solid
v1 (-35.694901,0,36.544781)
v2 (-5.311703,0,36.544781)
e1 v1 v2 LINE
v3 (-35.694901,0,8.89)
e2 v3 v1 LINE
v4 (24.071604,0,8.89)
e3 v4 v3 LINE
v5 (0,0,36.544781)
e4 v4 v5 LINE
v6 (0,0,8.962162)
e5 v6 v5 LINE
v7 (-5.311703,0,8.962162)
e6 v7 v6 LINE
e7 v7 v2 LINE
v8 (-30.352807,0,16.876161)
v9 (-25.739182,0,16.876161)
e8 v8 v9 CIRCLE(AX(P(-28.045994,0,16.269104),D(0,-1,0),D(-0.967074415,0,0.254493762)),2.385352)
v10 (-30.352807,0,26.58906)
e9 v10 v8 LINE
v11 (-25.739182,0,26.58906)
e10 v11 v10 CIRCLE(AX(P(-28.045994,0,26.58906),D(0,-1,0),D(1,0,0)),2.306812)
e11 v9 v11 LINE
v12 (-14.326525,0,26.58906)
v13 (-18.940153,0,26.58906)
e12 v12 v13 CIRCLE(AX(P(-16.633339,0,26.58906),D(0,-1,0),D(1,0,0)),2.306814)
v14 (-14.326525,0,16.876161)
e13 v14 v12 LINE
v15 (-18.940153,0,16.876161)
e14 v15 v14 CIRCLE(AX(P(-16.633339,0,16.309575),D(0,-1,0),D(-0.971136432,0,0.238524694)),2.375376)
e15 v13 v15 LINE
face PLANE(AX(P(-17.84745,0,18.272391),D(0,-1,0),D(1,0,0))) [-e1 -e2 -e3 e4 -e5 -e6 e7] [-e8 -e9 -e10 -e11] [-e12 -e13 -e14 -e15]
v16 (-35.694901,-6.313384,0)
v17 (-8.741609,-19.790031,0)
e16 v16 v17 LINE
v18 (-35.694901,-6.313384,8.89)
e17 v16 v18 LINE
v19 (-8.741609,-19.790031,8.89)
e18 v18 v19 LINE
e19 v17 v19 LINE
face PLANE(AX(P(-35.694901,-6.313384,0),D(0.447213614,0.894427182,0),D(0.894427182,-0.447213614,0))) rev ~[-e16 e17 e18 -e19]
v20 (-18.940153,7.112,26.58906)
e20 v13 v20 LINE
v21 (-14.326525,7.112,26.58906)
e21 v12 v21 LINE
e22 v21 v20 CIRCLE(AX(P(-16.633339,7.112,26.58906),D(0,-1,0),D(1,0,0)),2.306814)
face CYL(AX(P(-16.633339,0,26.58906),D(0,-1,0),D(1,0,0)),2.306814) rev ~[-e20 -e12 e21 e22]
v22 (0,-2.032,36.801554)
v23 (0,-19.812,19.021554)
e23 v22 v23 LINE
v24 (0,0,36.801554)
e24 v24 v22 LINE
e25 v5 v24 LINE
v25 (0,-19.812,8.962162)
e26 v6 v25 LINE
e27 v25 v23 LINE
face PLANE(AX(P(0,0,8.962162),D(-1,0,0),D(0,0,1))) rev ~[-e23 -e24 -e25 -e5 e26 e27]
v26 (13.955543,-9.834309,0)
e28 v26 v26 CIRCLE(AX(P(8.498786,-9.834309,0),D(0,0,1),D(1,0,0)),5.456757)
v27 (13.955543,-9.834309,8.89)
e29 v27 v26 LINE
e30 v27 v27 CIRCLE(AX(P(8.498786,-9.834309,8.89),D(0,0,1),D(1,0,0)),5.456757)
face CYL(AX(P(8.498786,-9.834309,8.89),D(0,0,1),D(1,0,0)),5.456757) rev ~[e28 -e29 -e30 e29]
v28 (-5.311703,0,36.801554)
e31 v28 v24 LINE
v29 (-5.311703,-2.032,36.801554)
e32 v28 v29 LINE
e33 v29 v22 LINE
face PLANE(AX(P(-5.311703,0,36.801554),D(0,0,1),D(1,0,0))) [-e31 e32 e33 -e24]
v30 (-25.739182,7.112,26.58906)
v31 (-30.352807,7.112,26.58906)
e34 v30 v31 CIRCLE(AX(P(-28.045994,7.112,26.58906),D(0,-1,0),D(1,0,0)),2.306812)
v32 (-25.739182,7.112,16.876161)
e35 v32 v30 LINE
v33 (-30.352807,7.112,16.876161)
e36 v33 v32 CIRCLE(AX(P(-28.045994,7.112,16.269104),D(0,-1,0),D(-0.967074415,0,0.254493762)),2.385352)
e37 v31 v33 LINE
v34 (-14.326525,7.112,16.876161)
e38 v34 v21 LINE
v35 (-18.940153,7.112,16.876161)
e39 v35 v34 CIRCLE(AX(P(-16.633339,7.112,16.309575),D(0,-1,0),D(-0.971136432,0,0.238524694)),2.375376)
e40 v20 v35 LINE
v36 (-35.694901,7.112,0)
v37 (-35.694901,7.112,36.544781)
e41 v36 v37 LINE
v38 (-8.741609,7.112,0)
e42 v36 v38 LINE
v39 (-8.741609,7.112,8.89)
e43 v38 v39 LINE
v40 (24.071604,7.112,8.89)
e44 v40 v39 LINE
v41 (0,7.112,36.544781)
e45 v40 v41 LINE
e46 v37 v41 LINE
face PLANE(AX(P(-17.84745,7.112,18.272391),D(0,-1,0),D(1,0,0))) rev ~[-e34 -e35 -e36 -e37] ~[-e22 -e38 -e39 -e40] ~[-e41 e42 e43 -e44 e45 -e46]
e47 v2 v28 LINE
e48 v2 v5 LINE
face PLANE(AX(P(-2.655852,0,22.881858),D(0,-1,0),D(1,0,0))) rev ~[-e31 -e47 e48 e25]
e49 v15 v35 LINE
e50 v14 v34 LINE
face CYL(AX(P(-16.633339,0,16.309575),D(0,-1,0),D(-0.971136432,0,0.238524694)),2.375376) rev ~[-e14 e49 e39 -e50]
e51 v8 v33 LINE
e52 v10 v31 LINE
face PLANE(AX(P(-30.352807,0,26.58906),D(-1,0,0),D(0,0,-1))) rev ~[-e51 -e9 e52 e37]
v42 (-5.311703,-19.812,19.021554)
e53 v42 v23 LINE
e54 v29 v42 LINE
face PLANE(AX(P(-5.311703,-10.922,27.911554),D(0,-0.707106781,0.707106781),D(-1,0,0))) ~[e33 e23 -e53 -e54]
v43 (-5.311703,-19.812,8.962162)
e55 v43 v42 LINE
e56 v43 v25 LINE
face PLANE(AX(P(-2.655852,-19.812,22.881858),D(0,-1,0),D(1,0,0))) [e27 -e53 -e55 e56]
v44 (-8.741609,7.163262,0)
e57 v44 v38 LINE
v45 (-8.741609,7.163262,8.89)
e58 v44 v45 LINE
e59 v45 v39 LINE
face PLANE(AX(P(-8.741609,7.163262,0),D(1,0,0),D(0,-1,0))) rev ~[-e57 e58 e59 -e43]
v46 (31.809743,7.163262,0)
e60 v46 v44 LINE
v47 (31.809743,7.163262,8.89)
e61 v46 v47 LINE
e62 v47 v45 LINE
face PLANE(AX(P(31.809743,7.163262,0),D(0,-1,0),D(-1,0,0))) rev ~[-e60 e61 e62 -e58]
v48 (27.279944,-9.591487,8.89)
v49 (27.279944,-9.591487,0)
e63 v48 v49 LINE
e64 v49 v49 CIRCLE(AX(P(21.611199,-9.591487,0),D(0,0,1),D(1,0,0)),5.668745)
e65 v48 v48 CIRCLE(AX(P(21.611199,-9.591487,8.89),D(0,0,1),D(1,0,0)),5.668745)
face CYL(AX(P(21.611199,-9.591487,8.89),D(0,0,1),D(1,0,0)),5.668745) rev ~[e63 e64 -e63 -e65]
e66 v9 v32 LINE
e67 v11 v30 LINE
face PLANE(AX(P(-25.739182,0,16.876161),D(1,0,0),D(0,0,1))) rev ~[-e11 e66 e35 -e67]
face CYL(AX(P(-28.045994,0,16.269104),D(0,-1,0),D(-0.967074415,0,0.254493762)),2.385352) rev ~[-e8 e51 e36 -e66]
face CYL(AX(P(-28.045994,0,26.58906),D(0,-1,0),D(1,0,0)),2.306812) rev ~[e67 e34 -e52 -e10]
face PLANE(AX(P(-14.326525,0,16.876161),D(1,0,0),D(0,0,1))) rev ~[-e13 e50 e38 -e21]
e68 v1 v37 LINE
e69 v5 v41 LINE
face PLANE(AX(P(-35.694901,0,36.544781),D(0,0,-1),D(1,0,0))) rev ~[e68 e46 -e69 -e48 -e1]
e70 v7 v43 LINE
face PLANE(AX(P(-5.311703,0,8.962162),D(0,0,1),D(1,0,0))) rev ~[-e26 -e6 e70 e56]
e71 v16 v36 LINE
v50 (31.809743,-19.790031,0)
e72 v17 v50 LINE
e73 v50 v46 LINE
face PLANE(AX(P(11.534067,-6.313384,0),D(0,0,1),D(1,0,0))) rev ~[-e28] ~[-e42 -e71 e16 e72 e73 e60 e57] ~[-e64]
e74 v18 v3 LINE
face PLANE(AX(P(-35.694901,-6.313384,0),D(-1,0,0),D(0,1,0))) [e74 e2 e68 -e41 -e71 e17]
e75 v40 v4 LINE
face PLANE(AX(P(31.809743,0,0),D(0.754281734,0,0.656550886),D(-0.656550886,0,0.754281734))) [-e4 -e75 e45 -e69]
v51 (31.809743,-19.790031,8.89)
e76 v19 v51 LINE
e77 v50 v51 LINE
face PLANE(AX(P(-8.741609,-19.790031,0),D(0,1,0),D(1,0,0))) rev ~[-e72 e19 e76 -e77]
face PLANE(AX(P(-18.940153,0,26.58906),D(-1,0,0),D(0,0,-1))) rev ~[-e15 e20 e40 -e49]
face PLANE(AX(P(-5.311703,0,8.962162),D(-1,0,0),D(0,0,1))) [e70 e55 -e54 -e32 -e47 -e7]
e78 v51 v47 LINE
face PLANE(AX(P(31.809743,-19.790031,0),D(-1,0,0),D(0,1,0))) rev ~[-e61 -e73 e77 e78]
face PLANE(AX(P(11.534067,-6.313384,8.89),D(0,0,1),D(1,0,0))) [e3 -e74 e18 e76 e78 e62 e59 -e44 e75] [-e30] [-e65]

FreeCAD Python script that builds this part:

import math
import FreeCAD as App
import Part
import Sketcher
from FreeCAD import Vector
Q = App.Units.Quantity


def edges_at(feature, points):
    """Names of the edges that pass closest to the given points."""
    edges = feature.Shape.Edges
    near = lambda p: min(range(len(edges)), key=lambda i: edges[i].distToShape(Part.Vertex(*p))[0])
    return sorted({f"Edge{near(p) + 1}" for p in points})


def add_polygon(sketch, points):
    """Adds a closed chain of lines whose ends are joined by coincident constraints."""
    first, n = sketch.GeometryCount, len(points)
    for a, b in zip(points, points[1:] + points[:1]):
        sketch.addGeometry(Part.LineSegment(App.Vector(*a, 0), App.Vector(*b, 0)), False)
    for i in range(n):
        sketch.addConstraint(Sketcher.Constraint("Coincident", first + i, 2, first + (i + 1) % n, 1))

doc = App.newDocument("Part")
body = doc.addObject("PartDesign::Body", "Body")

sketch1 = doc.addObject("Sketcher::SketchObject", "Sketch")
body.addObject(sketch1)
sketch1.AttachmentSupport = (doc.XZ_Plane, [""])
sketch1.MapMode = "FlatFace"
add_polygon(sketch1, [(-35.694901, 36.544781), (-35.694901, 0), (31.809743, 0), (0, 36.544781)])
sketch1.addConstraint([
    Sketcher.Constraint("Vertical", 0),
    Sketcher.Constraint("Horizontal", 1),
    Sketcher.Constraint("Horizontal", 3),
    Sketcher.Constraint("PointOnObject", 0, 2, -1),
    Sketcher.Constraint("PointOnObject", 2, 2, -2),
    Sketcher.Constraint("DistanceX", 3, 2, 3, 1, Q("35.694901 mm")),
    Sketcher.Constraint("DistanceY", 0, 2, 0, 1, Q("36.544781 mm")),
    Sketcher.Constraint("DistanceX", 1, 1, 1, 2, Q("67.504644 mm")),
])
pad1 = doc.addObject("PartDesign::Pad", "Pad")
body.addObject(pad1)
pad1.Profile = sketch1
pad1.Length = Q("0.28 in")
pad1.Reversed = True

sketch2 = doc.addObject("Sketcher::SketchObject", "Sketch001")
body.addObject(sketch2)
sketch2.AttachmentSupport = (doc.XY_Plane, [""])
sketch2.MapMode = "FlatFace"
add_polygon(sketch2, [(31.809743, 7.163262), (-8.741609, 7.163262), (-8.741609, 6.920441), (-35.694901, 6.920441), (-35.694901, -6.313384), (-8.741609, -19.790031), (31.809743, -19.790031)])
sketch2.addConstraint([
    Sketcher.Constraint("Horizontal", 0),
    Sketcher.Constraint("Vertical", 1),
    Sketcher.Constraint("Horizontal", 2),
    Sketcher.Constraint("Vertical", 3),
    Sketcher.Constraint("Horizontal", 5),
    Sketcher.Constraint("Vertical", 6),
    Sketcher.Constraint("Vertical", 1, 2, 4, 2),
    Sketcher.Constraint("Equal", 2, 6),
    Sketcher.Constraint("DistanceY", 1, 2, 1, 1, Q("0.242822 mm")),
    Sketcher.Constraint("DistanceX", 2, 2, -1, 1, Q("35.694901 mm")),
    Sketcher.Constraint("DistanceX", 0, 2, 0, 1, Q("40.551352 mm")),
    Sketcher.Constraint("DistanceX", 2, 2, 2, 1, Q("26.953292 mm")),
    Sketcher.Constraint("DistanceY", 3, 2, 3, 1, Q("13.233825 mm")),
    Sketcher.Constraint("DistanceY", -1, 1, 1, 2, Q("6.920441 mm")),
])
pad2 = doc.addObject("PartDesign::Pad", "Pad001")
body.addObject(pad2)
pad2.Profile = sketch2
pad2.Length = Q("0.35 in")

sketch3 = doc.addObject("Sketcher::SketchObject", "Sketch002")
body.addObject(sketch3)
sketch3.AttachmentSupport = (doc.XZ_Plane, [""])
sketch3.MapMode = "FlatFace"
add_polygon(sketch3, [(-5.311703, 36.801554), (-5.311703, 8.962162), (0, 8.962162), (0, 36.801554)])
sketch3.addConstraint([
    Sketcher.Constraint("Vertical", 0),
    Sketcher.Constraint("Horizontal", 1),
    Sketcher.Constraint("Vertical", 2),
    Sketcher.Constraint("Horizontal", 3),
    Sketcher.Constraint("PointOnObject", 1, 2, -2),
    Sketcher.Constraint("DistanceX", 1, 1, 1, 2, Q("5.311703 mm")),
    Sketcher.Constraint("DistanceY", 0, 2, 0, 1, Q("27.839392 mm")),
    Sketcher.Constraint("DistanceY", -1, 1, 0, 2, Q("8.962162 mm")),
])
pad3 = doc.addObject("PartDesign::Pad", "Pad002")
body.addObject(pad3)
pad3.Profile = sketch3
pad3.Length = Q("0.78 in")
doc.recompute()

chamfer = doc.addObject("PartDesign::Chamfer", "Chamfer")
body.addObject(chamfer)
chamfer.Base = (pad3, edges_at(pad3, [(-2.656, -19.812, 36.802)]))
chamfer.Size = Q("0.7 in")

sketch4 = doc.addObject("Sketcher::SketchObject", "Sketch003")
body.addObject(sketch4)
sketch4.AttachmentSupport = (doc.XZ_Plane, [""])
sketch4.MapMode = "FlatFace"
sketch4.addGeometry([
    Part.ArcOfCircle(Part.Circle(Vector(-28.045994, 26.58906, 0), Vector(0, 0, 1), 2.306812), math.radians(0), math.radians(180)),
    Part.LineSegment(Vector(-30.352807, 26.58906, 0), Vector(-30.352807, 16.876161, 0)),
    Part.ArcOfCircle(Part.Circle(Vector(-28.045994, 16.269104, 0), Vector(0, 0, 1), 2.385352), math.radians(165.25641), math.radians(374.74359)),
    Part.LineSegment(Vector(-25.739182, 16.876161, 0), Vector(-25.739182, 26.58906, 0)),
    Part.LineSegment(Vector(-18.940153, 26.58906, 0), Vector(-18.940153, 16.876161, 0)),
    Part.ArcOfCircle(Part.Circle(Vector(-16.633339, 16.309575, 0), Vector(0, 0, 1), 2.375376), math.radians(166.200517), math.radians(373.799483)),
    Part.LineSegment(Vector(-14.326525, 16.876161, 0), Vector(-14.326525, 26.58906, 0)),
    Part.ArcOfCircle(Part.Circle(Vector(-16.633339, 26.58906, 0), Vector(0, 0, 1), 2.306814), math.radians(0), math.radians(180)),
], False)
sketch4.addConstraint([
    Sketcher.Constraint("Tangent", 0, 2, 1, 1),
    Sketcher.Constraint("Coincident", 1, 2, 2, 1),
    Sketcher.Constraint("Coincident", 2, 2, 3, 1),
    Sketcher.Constraint("Tangent", 3, 2, 0, 1),
    Sketcher.Constraint("Coincident", 4, 2, 5, 1),
    Sketcher.Constraint("Coincident", 5, 2, 6, 1),
    Sketcher.Constraint("Tangent", 6, 2, 7, 1),
    Sketcher.Constraint("Tangent", 7, 2, 4, 1),
    Sketcher.Constraint("Vertical", 1),
    Sketcher.Constraint("Vertical", 3),
    Sketcher.Constraint("Vertical", 4),
    Sketcher.Constraint("Vertical", 6),
    Sketcher.Constraint("Equal", 0, 7),
    Sketcher.Constraint("Horizontal", 0, 3, 7, 3),
    Sketcher.Constraint("Horizontal", 1, 2, 2, 2),
    Sketcher.Constraint("Horizontal", 2, 2, 4, 2),
    Sketcher.Constraint("Horizontal", 4, 2, 5, 2),
    Sketcher.Constraint("Radius", 2, Q("2.385352 mm")),
    Sketcher.Constraint("DistanceY", 1, 2, 1, 1, Q("9.712899 mm")),
    Sketcher.Constraint("Radius", 0, Q("2.306812 mm")),
    Sketcher.Constraint("Radius", 5, Q("2.375376 mm")),
    Sketcher.Constraint("DistanceY", -1, 1, 0, 3, Q("26.58906 mm")),
    Sketcher.Constraint("DistanceX", 5, 3, -1, 1, Q("16.633339 mm")),
    Sketcher.Constraint("DistanceX", 2, 2, -1, 1, Q("25.739182 mm")),
])
pocket1 = doc.addObject("PartDesign::Pocket", "Pocket")
body.addObject(pocket1)
pocket1.Profile = sketch4
pocket1.Length = Q("1 in")

sketch5 = doc.addObject("Sketcher::SketchObject", "Sketch004")
body.addObject(sketch5)
sketch5.AttachmentSupport = (doc.XY_Plane, [""])
sketch5.MapMode = "FlatFace"
sketch5.AttachmentOffset = App.Placement(Vector(0, 0, 0.35 * 25.4), App.Rotation())
sketch5.addGeometry([
    Part.Circle(Vector(8.498786, -9.834309, 0), Vector(0, 0, 1), 5.456757),
    Part.Circle(Vector(21.611199, -9.591487, 0), Vector(0, 0, 1), 5.668745),
], False)
sketch5.addConstraint([
    Sketcher.Constraint("Diameter", 1, Q("11.33749 mm")),
    Sketcher.Constraint("Diameter", 0, Q("10.913514 mm")),
    Sketcher.Constraint("DistanceX", -1, 1, 1, 3, Q("21.611199 mm")),
    Sketcher.Constraint("DistanceY", 0, 3, -1, 1, Q("9.834309 mm")),
    Sketcher.Constraint("DistanceY", 0, 3, 1, 3, Q("0.242822 mm")),
    Sketcher.Constraint("DistanceX", -1, 1, 0, 3, Q("8.498786 mm")),
])
pocket2 = doc.addObject("PartDesign::Pocket", "Pocket001")
body.addObject(pocket2)
pocket2.Profile = sketch5
pocket2.Length = Q("1 in")

doc.recompute()
